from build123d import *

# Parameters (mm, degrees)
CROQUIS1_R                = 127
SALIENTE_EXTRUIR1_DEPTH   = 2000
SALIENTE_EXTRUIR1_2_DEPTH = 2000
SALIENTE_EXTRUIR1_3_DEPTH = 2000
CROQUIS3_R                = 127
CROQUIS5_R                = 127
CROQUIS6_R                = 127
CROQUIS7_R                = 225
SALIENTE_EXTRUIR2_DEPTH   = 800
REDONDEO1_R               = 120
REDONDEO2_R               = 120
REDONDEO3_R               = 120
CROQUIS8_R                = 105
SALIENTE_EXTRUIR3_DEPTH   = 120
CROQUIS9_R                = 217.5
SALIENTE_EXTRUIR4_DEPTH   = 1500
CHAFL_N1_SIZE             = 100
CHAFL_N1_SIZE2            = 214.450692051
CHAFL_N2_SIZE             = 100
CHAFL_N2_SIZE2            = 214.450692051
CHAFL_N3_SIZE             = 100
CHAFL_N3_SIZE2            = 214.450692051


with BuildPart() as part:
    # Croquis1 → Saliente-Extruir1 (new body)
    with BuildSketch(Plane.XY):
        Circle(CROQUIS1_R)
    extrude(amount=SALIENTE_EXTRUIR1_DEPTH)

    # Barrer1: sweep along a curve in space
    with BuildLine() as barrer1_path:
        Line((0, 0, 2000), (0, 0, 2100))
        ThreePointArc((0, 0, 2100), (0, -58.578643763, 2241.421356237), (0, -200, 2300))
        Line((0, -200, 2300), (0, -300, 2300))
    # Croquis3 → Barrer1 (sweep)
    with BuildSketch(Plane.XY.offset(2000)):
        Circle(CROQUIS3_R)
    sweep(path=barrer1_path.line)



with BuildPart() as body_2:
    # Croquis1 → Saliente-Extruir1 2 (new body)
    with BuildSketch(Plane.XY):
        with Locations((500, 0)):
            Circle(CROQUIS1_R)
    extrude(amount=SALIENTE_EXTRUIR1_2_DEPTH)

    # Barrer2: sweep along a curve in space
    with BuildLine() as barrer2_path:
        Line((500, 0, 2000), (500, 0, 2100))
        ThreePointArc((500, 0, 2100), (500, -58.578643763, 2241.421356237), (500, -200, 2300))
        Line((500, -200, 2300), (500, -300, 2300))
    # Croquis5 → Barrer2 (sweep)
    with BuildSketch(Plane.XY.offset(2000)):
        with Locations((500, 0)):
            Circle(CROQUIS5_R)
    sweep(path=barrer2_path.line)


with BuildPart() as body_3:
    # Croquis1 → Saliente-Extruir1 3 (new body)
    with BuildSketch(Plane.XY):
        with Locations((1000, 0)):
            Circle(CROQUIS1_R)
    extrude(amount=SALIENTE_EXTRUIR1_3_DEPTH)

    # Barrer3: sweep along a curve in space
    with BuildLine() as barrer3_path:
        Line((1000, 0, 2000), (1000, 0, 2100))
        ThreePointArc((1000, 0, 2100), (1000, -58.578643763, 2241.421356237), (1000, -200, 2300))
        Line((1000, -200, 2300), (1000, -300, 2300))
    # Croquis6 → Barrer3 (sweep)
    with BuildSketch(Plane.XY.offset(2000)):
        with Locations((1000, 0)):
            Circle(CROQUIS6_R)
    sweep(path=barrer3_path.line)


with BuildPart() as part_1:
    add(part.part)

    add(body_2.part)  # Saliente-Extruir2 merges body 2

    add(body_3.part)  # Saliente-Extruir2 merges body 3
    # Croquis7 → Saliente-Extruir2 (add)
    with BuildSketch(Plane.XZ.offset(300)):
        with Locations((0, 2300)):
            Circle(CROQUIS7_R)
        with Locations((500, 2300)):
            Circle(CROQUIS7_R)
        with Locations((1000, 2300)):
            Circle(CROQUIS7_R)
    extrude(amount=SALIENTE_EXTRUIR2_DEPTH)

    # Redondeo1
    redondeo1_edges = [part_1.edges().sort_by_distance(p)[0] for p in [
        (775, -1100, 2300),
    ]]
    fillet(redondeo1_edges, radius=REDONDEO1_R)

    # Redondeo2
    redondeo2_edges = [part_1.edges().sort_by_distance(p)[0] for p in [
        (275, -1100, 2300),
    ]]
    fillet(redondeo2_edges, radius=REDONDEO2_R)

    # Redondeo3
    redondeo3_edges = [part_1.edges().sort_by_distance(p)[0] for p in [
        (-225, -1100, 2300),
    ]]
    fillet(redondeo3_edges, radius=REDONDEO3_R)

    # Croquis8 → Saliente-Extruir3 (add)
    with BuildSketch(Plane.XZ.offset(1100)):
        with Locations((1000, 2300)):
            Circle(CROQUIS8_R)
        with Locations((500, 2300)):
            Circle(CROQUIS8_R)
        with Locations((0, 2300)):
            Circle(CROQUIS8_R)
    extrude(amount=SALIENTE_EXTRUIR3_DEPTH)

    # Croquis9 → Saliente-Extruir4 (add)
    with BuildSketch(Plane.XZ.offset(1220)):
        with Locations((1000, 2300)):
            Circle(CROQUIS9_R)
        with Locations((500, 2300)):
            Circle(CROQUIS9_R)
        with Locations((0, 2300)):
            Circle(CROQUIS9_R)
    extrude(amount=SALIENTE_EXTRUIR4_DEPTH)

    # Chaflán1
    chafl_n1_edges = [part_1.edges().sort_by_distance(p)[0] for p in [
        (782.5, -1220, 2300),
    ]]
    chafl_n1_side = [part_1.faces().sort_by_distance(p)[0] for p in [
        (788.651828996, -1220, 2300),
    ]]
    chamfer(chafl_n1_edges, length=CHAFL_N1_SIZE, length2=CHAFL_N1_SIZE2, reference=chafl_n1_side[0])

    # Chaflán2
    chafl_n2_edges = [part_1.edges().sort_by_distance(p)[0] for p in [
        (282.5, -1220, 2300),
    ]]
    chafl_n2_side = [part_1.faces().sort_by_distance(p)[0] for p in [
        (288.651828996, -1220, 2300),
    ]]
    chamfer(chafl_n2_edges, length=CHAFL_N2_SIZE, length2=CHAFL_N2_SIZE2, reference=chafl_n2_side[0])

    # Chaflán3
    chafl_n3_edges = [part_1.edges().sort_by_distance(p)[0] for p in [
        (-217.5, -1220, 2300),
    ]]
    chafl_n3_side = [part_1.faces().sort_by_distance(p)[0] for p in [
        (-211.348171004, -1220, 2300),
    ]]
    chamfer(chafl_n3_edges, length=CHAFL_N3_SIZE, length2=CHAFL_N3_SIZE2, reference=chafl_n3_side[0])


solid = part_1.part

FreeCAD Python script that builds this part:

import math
import FreeCAD as App
import Part
import Sketcher

V = App.Vector
Q = App.Units.Quantity


def edges_at(feature, points):
    """Names of the edges that pass closest to the given points."""
    edges = feature.Shape.Edges
    near = lambda p: min(range(len(edges)), key=lambda i: edges[i].distToShape(Part.Vertex(*p))[0])
    return sorted({f"Edge{near(p) + 1}" for p in points})

doc = App.newDocument("Part")
body = doc.addObject("PartDesign::Body", "Body")

# Sketch on XY plane
sketch1 = body.newObject("Sketcher::SketchObject", "Sketch")
sketch1.AttachmentSupport = (doc.getObject("XY_Plane"), [""])
sketch1.MapMode = "FlatFace"
sketch1.addGeometry(Part.Circle(V(0, 0, 0), V(0, 0, 1), 127), False)
sketch1.addConstraint(Sketcher.Constraint("Coincident", 0, 3, -1, 1))
sketch1.addConstraint(Sketcher.Constraint("Diameter", 0, Q("254 mm")))
pad1 = body.newObject("PartDesign::Pad", "Pad")
pad1.Profile = sketch1
pad1.Length = 2000

# Sketch on XY plane
sketch2 = body.newObject("Sketcher::SketchObject", "Sketch001")
sketch2.AttachmentSupport = (doc.getObject("XY_Plane"), [""])
sketch2.MapMode = "FlatFace"
sketch2.AttachmentOffset = App.Placement(V(0, 0, 2000), App.Rotation())
sketch2.addGeometry(Part.Circle(V(0, 0, 0), V(0, 0, 1), 127), False)
sketch2.addConstraint(Sketcher.Constraint("Coincident", 0, 3, -1, 1))
sketch2.addConstraint(Sketcher.Constraint("Diameter", 0, Q("254 mm")))

# Sketch on YZ plane
sketch3 = body.newObject("Sketcher::SketchObject", "Sketch002")
sketch3.AttachmentSupport = (doc.getObject("YZ_Plane"), [""])
sketch3.MapMode = "FlatFace"
sketch3.addGeometry(Part.LineSegment(V(0, 2000, 0), V(0, 2100, 0)), False)
sketch3.addGeometry(Part.ArcOfCircle(Part.Circle(V(-200, 2100, 0), V(0, 0, 1), 200), math.radians(0), math.radians(90)), False)
sketch3.addGeometry(Part.LineSegment(V(-200, 2300, 0), V(-300, 2300, 0)), False)
sketch3.addConstraint(Sketcher.Constraint("Tangent", 0, 2, 1, 1))
sketch3.addConstraint(Sketcher.Constraint("Tangent", 1, 2, 2, 1))
sketch3.addConstraint(Sketcher.Constraint("Vertical", 0))
sketch3.addConstraint(Sketcher.Constraint("Horizontal", 2))
sketch3.addConstraint(Sketcher.Constraint("PointOnObject", 0, 1, -2))
sketch3.addConstraint(Sketcher.Constraint("Equal", 2, 0))
sketch3.addConstraint(Sketcher.Constraint("Radius", 1, Q("200 mm")))
sketch3.addConstraint(Sketcher.Constraint("DistanceX", 2, 2, 2, 1, Q("100 mm")))
sketch3.addConstraint(Sketcher.Constraint("DistanceY", -1, 1, 1, 3, Q("2100 mm")))
doc.recompute()

additivepipe = body.newObject("PartDesign::AdditivePipe", "AdditivePipe")
additivepipe.Profile = sketch2
additivepipe.Spine = (sketch3, ["Edge1", "Edge2", "Edge3"])
body2 = doc.addObject("PartDesign::Body", "Body001")

# Sketch on XY plane
sketch4 = body2.newObject("Sketcher::SketchObject", "Sketch003")
sketch4.AttachmentSupport = (doc.getObject("XY_Plane001"), [""])
sketch4.MapMode = "FlatFace"
sketch4.addGeometry(Part.Circle(V(500, 0, 0), V(0, 0, 1), 127), False)
sketch4.addConstraint(Sketcher.Constraint("PointOnObject", 0, 3, -1))
sketch4.addConstraint(Sketcher.Constraint("Diameter", 0, Q("254 mm")))
sketch4.addConstraint(Sketcher.Constraint("DistanceX", -1, 1, 0, 3, Q("500 mm")))
pad2 = body2.newObject("PartDesign::Pad", "Pad001")
pad2.Profile = sketch4
pad2.Length = 2000

# Sketch on XY plane
sketch5 = body2.newObject("Sketcher::SketchObject", "Sketch004")
sketch5.AttachmentSupport = (doc.getObject("XY_Plane001"), [""])
sketch5.MapMode = "FlatFace"
sketch5.AttachmentOffset = App.Placement(V(0, 0, 2000), App.Rotation())
sketch5.addGeometry(Part.Circle(V(500, 0, 0), V(0, 0, 1), 127), False)
sketch5.addConstraint(Sketcher.Constraint("PointOnObject", 0, 3, -1))
sketch5.addConstraint(Sketcher.Constraint("Diameter", 0, Q("254 mm")))
sketch5.addConstraint(Sketcher.Constraint("DistanceX", -1, 1, 0, 3, Q("500 mm")))

# Sketch on YZ plane
sketch6 = body2.newObject("Sketcher::SketchObject", "Sketch005")
sketch6.AttachmentSupport = (doc.getObject("YZ_Plane001"), [""])
sketch6.MapMode = "FlatFace"
sketch6.AttachmentOffset = App.Placement(V(0, 0, 500), App.Rotation())
sketch6.addGeometry(Part.LineSegment(V(0, 2000, 0), V(0, 2100, 0)), False)
sketch6.addGeometry(Part.ArcOfCircle(Part.Circle(V(-200, 2100, 0), V(0, 0, 1), 200), math.radians(0), math.radians(90)), False)
sketch6.addGeometry(Part.LineSegment(V(-200, 2300, 0), V(-300, 2300, 0)), False)
sketch6.addConstraint(Sketcher.Constraint("Tangent", 0, 2, 1, 1))
sketch6.addConstraint(Sketcher.Constraint("Tangent", 1, 2, 2, 1))
sketch6.addConstraint(Sketcher.Constraint("Vertical", 0))
sketch6.addConstraint(Sketcher.Constraint("Horizontal", 2))
sketch6.addConstraint(Sketcher.Constraint("PointOnObject", 0, 1, -2))
sketch6.addConstraint(Sketcher.Constraint("Equal", 2, 0))
sketch6.addConstraint(Sketcher.Constraint("Radius", 1, Q("200 mm")))
sketch6.addConstraint(Sketcher.Constraint("DistanceX", 2, 2, 2, 1, Q("100 mm")))
sketch6.addConstraint(Sketcher.Constraint("DistanceY", -1, 1, 1, 3, Q("2100 mm")))
doc.recompute()

additivepipe2 = body2.newObject("PartDesign::AdditivePipe", "AdditivePipe001")
additivepipe2.Profile = sketch5
additivepipe2.Spine = (sketch6, ["Edge1", "Edge2", "Edge3"])
body3 = doc.addObject("PartDesign::Body", "Body002")

# Sketch on XY plane
sketch7 = body3.newObject("Sketcher::SketchObject", "Sketch006")
sketch7.AttachmentSupport = (doc.getObject("XY_Plane002"), [""])
sketch7.MapMode = "FlatFace"
sketch7.addGeometry(Part.Circle(V(1000, 0, 0), V(0, 0, 1), 127), False)
sketch7.addConstraint(Sketcher.Constraint("PointOnObject", 0, 3, -1))
sketch7.addConstraint(Sketcher.Constraint("Diameter", 0, Q("254 mm")))
sketch7.addConstraint(Sketcher.Constraint("DistanceX", -1, 1, 0, 3, Q("1000 mm")))
pad3 = body3.newObject("PartDesign::Pad", "Pad002")
pad3.Profile = sketch7
pad3.Length = 2000

# Sketch on XY plane
sketch8 = body3.newObject("Sketcher::SketchObject", "Sketch007")
sketch8.AttachmentSupport = (doc.getObject("XY_Plane002"), [""])
sketch8.MapMode = "FlatFace"
sketch8.AttachmentOffset = App.Placement(V(0, 0, 2000), App.Rotation())
sketch8.addGeometry(Part.Circle(V(1000, 0, 0), V(0, 0, 1), 127), False)
sketch8.addConstraint(Sketcher.Constraint("PointOnObject", 0, 3, -1))
sketch8.addConstraint(Sketcher.Constraint("Diameter", 0, Q("254 mm")))
sketch8.addConstraint(Sketcher.Constraint("DistanceX", -1, 1, 0, 3, Q("1000 mm")))

# Sketch on YZ plane
sketch9 = body3.newObject("Sketcher::SketchObject", "Sketch008")
sketch9.AttachmentSupport = (doc.getObject("YZ_Plane002"), [""])
sketch9.MapMode = "FlatFace"
sketch9.AttachmentOffset = App.Placement(V(0, 0, 1000), App.Rotation())
sketch9.addGeometry(Part.LineSegment(V(0, 2000, 0), V(0, 2100, 0)), False)
sketch9.addGeometry(Part.ArcOfCircle(Part.Circle(V(-200, 2100, 0), V(0, 0, 1), 200), math.radians(0), math.radians(90)), False)
sketch9.addGeometry(Part.LineSegment(V(-200, 2300, 0), V(-300, 2300, 0)), False)
sketch9.addConstraint(Sketcher.Constraint("Tangent", 0, 2, 1, 1))
sketch9.addConstraint(Sketcher.Constraint("Tangent", 1, 2, 2, 1))
sketch9.addConstraint(Sketcher.Constraint("Vertical", 0))
sketch9.addConstraint(Sketcher.Constraint("Horizontal", 2))
sketch9.addConstraint(Sketcher.Constraint("PointOnObject", 0, 1, -2))
sketch9.addConstraint(Sketcher.Constraint("Equal", 2, 0))
sketch9.addConstraint(Sketcher.Constraint("Radius", 1, Q("200 mm")))
sketch9.addConstraint(Sketcher.Constraint("DistanceX", 2, 2, 2, 1, Q("100 mm")))
sketch9.addConstraint(Sketcher.Constraint("DistanceY", -1, 1, 1, 3, Q("2100 mm")))
doc.recompute()

additivepipe3 = body3.newObject("PartDesign::AdditivePipe", "AdditivePipe002")
additivepipe3.Profile = sketch8
additivepipe3.Spine = (sketch9, ["Edge1", "Edge2", "Edge3"])
body.AllowCompound = True
doc.recompute()

boolean = body.newObject("PartDesign::Boolean", "Boolean")
boolean.Type = "Fuse"
boolean.addObjects([body2])
doc.recompute()

boolean2 = body.newObject("PartDesign::Boolean", "Boolean001")
boolean2.Type = "Fuse"
boolean2.addObjects([body3])

# Sketch on XZ plane
sketch10 = body.newObject("Sketcher::SketchObject", "Sketch009")
sketch10.AttachmentSupport = (doc.getObject("XZ_Plane"), [""])
sketch10.MapMode = "FlatFace"
sketch10.AttachmentOffset = App.Placement(V(0, 0, 300), App.Rotation())
sketch10.addGeometry(Part.Circle(V(0, 2300, 0), V(0, 0, 1), 225), False)
sketch10.addGeometry(Part.Circle(V(500, 2300, 0), V(0, 0, 1), 225), False)
sketch10.addGeometry(Part.Circle(V(1000, 2300, 0), V(0, 0, 1), 225), False)
sketch10.addConstraint(Sketcher.Constraint("Equal", 0, 1))
sketch10.addConstraint(Sketcher.Constraint("Equal", 1, 2))
sketch10.addConstraint(Sketcher.Constraint("PointOnObject", 0, 3, -2))
sketch10.addConstraint(Sketcher.Constraint("Horizontal", 0, 3, 1, 3))
sketch10.addConstraint(Sketcher.Constraint("Horizontal", 1, 3, 2, 3))
sketch10.addConstraint(Sketcher.Constraint("Diameter", 0, Q("450 mm")))
sketch10.addConstraint(Sketcher.Constraint("DistanceY", -1, 1, 0, 3, Q("2300 mm")))
sketch10.addConstraint(Sketcher.Constraint("DistanceX", -1, 1, 1, 3, Q("500 mm")))
sketch10.addConstraint(Sketcher.Constraint("DistanceX", -1, 1, 2, 3, Q("1000 mm")))
pad4 = body.newObject("PartDesign::Pad", "Pad003")
pad4.Profile = sketch10
pad4.Length = 800
doc.recompute()

fillet = body.newObject("PartDesign::Fillet", "Fillet")
fillet.Base = (pad4, edges_at(pad4, [(775, -1100, 2300)]))
fillet.Radius = 120
doc.recompute()

fillet2 = body.newObject("PartDesign::Fillet", "Fillet001")
fillet2.Base = (fillet, edges_at(fillet, [(275, -1100, 2300)]))
fillet2.Radius = 120
doc.recompute()

fillet3 = body.newObject("PartDesign::Fillet", "Fillet002")
fillet3.Base = (fillet2, edges_at(fillet2, [(-225, -1100, 2300)]))
fillet3.Radius = 120

# Sketch on XZ plane
sketch11 = body.newObject("Sketcher::SketchObject", "Sketch010")
sketch11.AttachmentSupport = (doc.getObject("XZ_Plane"), [""])
sketch11.MapMode = "FlatFace"
sketch11.AttachmentOffset = App.Placement(V(0, 0, 1100), App.Rotation())
sketch11.addGeometry(Part.Circle(V(1000, 2300, 0), V(0, 0, 1), 105), False)
sketch11.addGeometry(Part.Circle(V(500, 2300, 0), V(0, 0, 1), 105), False)
sketch11.addGeometry(Part.Circle(V(0, 2300, 0), V(0, 0, 1), 105), False)
sketch11.addConstraint(Sketcher.Constraint("Equal", 0, 1))
sketch11.addConstraint(Sketcher.Constraint("Equal", 1, 2))
sketch11.addConstraint(Sketcher.Constraint("PointOnObject", 2, 3, -2))
sketch11.addConstraint(Sketcher.Constraint("Horizontal", 0, 3, 1, 3))
sketch11.addConstraint(Sketcher.Constraint("Horizontal", 1, 3, 2, 3))
sketch11.addConstraint(Sketcher.Constraint("Diameter", 0, Q("210 mm")))
sketch11.addConstraint(Sketcher.Constraint("DistanceX", -1, 1, 0, 3, Q("1000 mm")))
sketch11.addConstraint(Sketcher.Constraint("DistanceY", -1, 1, 0, 3, Q("2300 mm")))
sketch11.addConstraint(Sketcher.Constraint("DistanceX", -1, 1, 1, 3, Q("500 mm")))
pad5 = body.newObject("PartDesign::Pad", "Pad004")
pad5.Profile = sketch11
pad5.Length = 120

# Sketch on XZ plane
sketch12 = body.newObject("Sketcher::SketchObject", "Sketch011")
sketch12.AttachmentSupport = (doc.getObject("XZ_Plane"), [""])
sketch12.MapMode = "FlatFace"
sketch12.AttachmentOffset = App.Placement(V(0, 0, 1220), App.Rotation())
sketch12.addGeometry(Part.Circle(V(1000, 2300, 0), V(0, 0, 1), 218), False)
sketch12.addGeometry(Part.Circle(V(500, 2300, 0), V(0, 0, 1), 218), False)
sketch12.addGeometry(Part.Circle(V(0, 2300, 0), V(0, 0, 1), 218), False)
sketch12.addConstraint(Sketcher.Constraint("Equal", 0, 1))
sketch12.addConstraint(Sketcher.Constraint("Equal", 1, 2))
sketch12.addConstraint(Sketcher.Constraint("PointOnObject", 2, 3, -2))
sketch12.addConstraint(Sketcher.Constraint("Horizontal", 0, 3, 1, 3))
sketch12.addConstraint(Sketcher.Constraint("Horizontal", 1, 3, 2, 3))
sketch12.addConstraint(Sketcher.Constraint("Diameter", 0, Q("435 mm")))
sketch12.addConstraint(Sketcher.Constraint("DistanceX", -1, 1, 0, 3, Q("1000 mm")))
sketch12.addConstraint(Sketcher.Constraint("DistanceY", -1, 1, 0, 3, Q("2300 mm")))
sketch12.addConstraint(Sketcher.Constraint("DistanceX", -1, 1, 1, 3, Q("500 mm")))
pad6 = body.newObject("PartDesign::Pad", "Pad005")
pad6.Profile = sketch12
pad6.Length = 1500
doc.recompute()

chamfer = body.newObject("PartDesign::Chamfer", "Chamfer")
chamfer.Base = (pad6, edges_at(pad6, [(782.5, -1220, 2300)]))
chamfer.ChamferType = "Two distances"
chamfer.Size = 100
chamfer.Size2 = 214.450692
doc.recompute()

chamfer2 = body.newObject("PartDesign::Chamfer", "Chamfer001")
chamfer2.Base = (chamfer, edges_at(chamfer, [(282.5, -1220, 2300)]))
chamfer2.ChamferType = "Two distances"
chamfer2.Size = 100
chamfer2.Size2 = 214.450692
doc.recompute()

chamfer3 = body.newObject("PartDesign::Chamfer", "Chamfer002")
chamfer3.Base = (chamfer2, edges_at(chamfer2, [(-217.5, -1220, 2300)]))
chamfer3.ChamferType = "Two distances"
chamfer3.Size = 100
chamfer3.Size2 = 214.450692

doc.recompute()
